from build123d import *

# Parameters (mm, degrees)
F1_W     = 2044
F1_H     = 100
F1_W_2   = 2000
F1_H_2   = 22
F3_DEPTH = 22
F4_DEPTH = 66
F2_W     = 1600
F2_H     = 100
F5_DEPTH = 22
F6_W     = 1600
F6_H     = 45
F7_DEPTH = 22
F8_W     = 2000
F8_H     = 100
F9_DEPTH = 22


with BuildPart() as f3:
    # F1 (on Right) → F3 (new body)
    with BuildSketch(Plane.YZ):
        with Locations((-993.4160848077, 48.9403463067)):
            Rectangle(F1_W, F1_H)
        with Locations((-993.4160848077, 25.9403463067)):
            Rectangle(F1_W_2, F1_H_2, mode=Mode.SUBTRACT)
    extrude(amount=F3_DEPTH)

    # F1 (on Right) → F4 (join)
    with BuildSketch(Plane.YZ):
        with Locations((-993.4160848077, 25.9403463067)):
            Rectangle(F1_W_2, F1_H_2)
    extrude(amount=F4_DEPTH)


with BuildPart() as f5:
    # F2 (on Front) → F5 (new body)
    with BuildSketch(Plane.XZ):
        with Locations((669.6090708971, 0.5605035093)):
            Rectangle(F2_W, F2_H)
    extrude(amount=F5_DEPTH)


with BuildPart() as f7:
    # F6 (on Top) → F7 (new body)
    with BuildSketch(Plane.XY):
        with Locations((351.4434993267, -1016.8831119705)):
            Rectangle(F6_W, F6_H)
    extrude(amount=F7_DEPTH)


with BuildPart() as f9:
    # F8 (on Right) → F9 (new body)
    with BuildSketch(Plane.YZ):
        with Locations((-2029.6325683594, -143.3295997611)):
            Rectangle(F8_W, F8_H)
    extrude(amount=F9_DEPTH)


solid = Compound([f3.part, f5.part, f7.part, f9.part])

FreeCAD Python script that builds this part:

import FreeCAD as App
import Part
import Sketcher
from FreeCAD import Vector


def add_polygon(sketch, points):
    """Adds a closed chain of lines whose ends are joined by coincident constraints."""
    first, n = sketch.GeometryCount, len(points)
    for a, b in zip(points, points[1:] + points[:1]):
        sketch.addGeometry(Part.LineSegment(App.Vector(*a, 0), App.Vector(*b, 0)), False)
    for i in range(n):
        sketch.addConstraint(Sketcher.Constraint("Coincident", first + i, 2, first + (i + 1) % n, 1))

doc = App.newDocument("Part")
params = doc.addObject("Spreadsheet::Sheet", "Params")
for row, (alias, value) in enumerate([
    ("sketch1_width", "2044 mm"),
    ("sketch1_width2", "2000 mm"),
    ("sketch1_height", "100 mm"),
    ("sketch1_height2", "22 mm"),
    ("pad1_length", "22 mm"),
    ("sketch2_width", "2000 mm"),
    ("sketch2_height", "22 mm"),
    ("pad2_length", "66 mm"),
    ("sketch3_width", "1600 mm"),
    ("sketch3_height", "100 mm"),
    ("pad3_length", "22 mm"),
    ("sketch4_width", "1600 mm"),
    ("sketch4_height", "45 mm"),
    ("pad4_length", "22 mm"),
    ("sketch5_width", "2000 mm"),
    ("sketch5_height", "100 mm"),
    ("pad5_length", "22 mm"),
], start=1):
    params.set(f"A{row}", alias)
    params.set(f"B{row}", "=" + value)
    params.setAlias(f"B{row}", alias)

body = doc.addObject("PartDesign::Body", "Body")

# Sketch on YZ plane
sketch1 = body.newObject("Sketcher::SketchObject", "Sketch")
sketch1.AttachmentSupport = (doc.getObject("YZ_Plane"), [""])
sketch1.MapMode = "FlatFace"
add_polygon(sketch1, [(-2015.416085, 98.940346), (-2015.416085, -1.059654), (28.583915, -1.059654), (28.583915, 98.940346)])  # lines 0-3
add_polygon(sketch1, [(6.583915, 14.940346), (-1993.416085, 14.940346), (-1993.416085, 36.940346), (6.583915, 36.940346)])  # lines 4-7
sketch1.addConstraint([
    Sketcher.Constraint("Vertical", 0),
    Sketcher.Constraint("Horizontal", 1),
    Sketcher.Constraint("Vertical", 2),
    Sketcher.Constraint("Horizontal", 3),
    Sketcher.Constraint("Horizontal", 4),
    Sketcher.Constraint("Vertical", 5),
    Sketcher.Constraint("Horizontal", 6),
    Sketcher.Constraint("Vertical", 7),
    Sketcher.Constraint("DistanceX", 1, 1, 1, 2, 2044.0),
    Sketcher.Constraint("DistanceX", 4, 2, 4, 1, 2000.0),
    Sketcher.Constraint("DistanceY", 0, 2, 0, 1, 100.0),
    Sketcher.Constraint("DistanceY", 5, 1, 5, 2, 22.0),
    Sketcher.Constraint("DistanceX", 0, 2, 4, 2, 22.0),
    Sketcher.Constraint("DistanceY", 0, 2, 4, 2, 16.0),
    Sketcher.Constraint("DistanceX", 0, 2, -1, 1, 2015.416085),
    Sketcher.Constraint("DistanceY", 0, 2, -1, 1, 1.059654),
])
sketch1.setExpression("Constraints[16]", "Params.sketch1_width")
sketch1.setExpression("Constraints[17]", "Params.sketch1_width2")
sketch1.setExpression("Constraints[18]", "Params.sketch1_height")
sketch1.setExpression("Constraints[19]", "Params.sketch1_height2")
pad1 = body.newObject("PartDesign::Pad", "Pad")
pad1.Profile = sketch1
pad1.setExpression("Length", "Params.pad1_length")

# Sketch on YZ plane
sketch2 = body.newObject("Sketcher::SketchObject", "Sketch001")
sketch2.AttachmentSupport = (doc.getObject("YZ_Plane"), [""])
sketch2.MapMode = "FlatFace"
add_polygon(sketch2, [(-1993.416085, 36.940346), (-1993.416085, 14.940346), (6.583915, 14.940346), (6.583915, 36.940346)])  # lines 0-3
sketch2.addConstraint([
    Sketcher.Constraint("Vertical", 0),
    Sketcher.Constraint("Horizontal", 1),
    Sketcher.Constraint("Vertical", 2),
    Sketcher.Constraint("Horizontal", 3),
    Sketcher.Constraint("DistanceX", 1, 1, 1, 2, 2000.0),
    Sketcher.Constraint("DistanceY", 0, 2, 0, 1, 22.0),
    Sketcher.Constraint("DistanceX", 0, 2, -1, 1, 1993.416085),
    Sketcher.Constraint("DistanceY", -1, 1, 0, 2, 14.940346),
])
sketch2.setExpression("Constraints[8]", "Params.sketch2_width")
sketch2.setExpression("Constraints[9]", "Params.sketch2_height")
pad2 = body.newObject("PartDesign::Pad", "Pad001")
pad2.Profile = sketch2
pad2.setExpression("Length", "Params.pad2_length")
body2 = doc.addObject("PartDesign::Body", "Body001")

# Sketch on XZ plane
sketch3 = body2.newObject("Sketcher::SketchObject", "Sketch002")
sketch3.AttachmentSupport = (doc.getObject("XZ_Plane001"), [""])
sketch3.MapMode = "FlatFace"
add_polygon(sketch3, [(-130.390929, 50.560504), (-130.390929, -49.439496), (1469.609071, -49.439496), (1469.609071, 50.560504)])  # lines 0-3
sketch3.addConstraint([
    Sketcher.Constraint("Vertical", 0),
    Sketcher.Constraint("Horizontal", 1),
    Sketcher.Constraint("Vertical", 2),
    Sketcher.Constraint("Horizontal", 3),
    Sketcher.Constraint("DistanceX", 1, 1, 1, 2, 1600.0),
    Sketcher.Constraint("DistanceY", 0, 2, 0, 1, 100.0),
    Sketcher.Constraint("DistanceX", 0, 2, -1, 1, 130.390929),
    Sketcher.Constraint("DistanceY", 0, 2, -1, 1, 49.439496),
])
sketch3.setExpression("Constraints[8]", "Params.sketch3_width")
sketch3.setExpression("Constraints[9]", "Params.sketch3_height")
pad3 = body2.newObject("PartDesign::Pad", "Pad002")
pad3.Profile = sketch3
pad3.setExpression("Length", "Params.pad3_length")
body3 = doc.addObject("PartDesign::Body", "Body002")

# Sketch on XY plane
sketch4 = body3.newObject("Sketcher::SketchObject", "Sketch003")
sketch4.AttachmentSupport = (doc.getObject("XY_Plane002"), [""])
sketch4.MapMode = "FlatFace"
add_polygon(sketch4, [(-448.556501, -994.383112), (-448.556501, -1039.383112), (1151.443499, -1039.383112), (1151.443499, -994.383112)])  # lines 0-3
sketch4.addConstraint([
    Sketcher.Constraint("Vertical", 0),
    Sketcher.Constraint("Horizontal", 1),
    Sketcher.Constraint("Vertical", 2),
    Sketcher.Constraint("Horizontal", 3),
    Sketcher.Constraint("DistanceX", 1, 1, 1, 2, 1600.0),
    Sketcher.Constraint("DistanceY", 0, 2, 0, 1, 45.0),
    Sketcher.Constraint("DistanceX", 0, 2, -1, 1, 448.556501),
    Sketcher.Constraint("DistanceY", 0, 2, -1, 1, 1039.383112),
])
sketch4.setExpression("Constraints[8]", "Params.sketch4_width")
sketch4.setExpression("Constraints[9]", "Params.sketch4_height")
pad4 = body3.newObject("PartDesign::Pad", "Pad003")
pad4.Profile = sketch4
pad4.setExpression("Length", "Params.pad4_length")
body4 = doc.addObject("PartDesign::Body", "Body003")

# Sketch on YZ plane
sketch5 = body4.newObject("Sketcher::SketchObject", "Sketch004")
sketch5.AttachmentSupport = (doc.getObject("YZ_Plane003"), [""])
sketch5.MapMode = "FlatFace"
add_polygon(sketch5, [(-3029.632568, -93.3296), (-3029.632568, -193.3296), (-1029.632568, -193.3296), (-1029.632568, -93.3296)])  # lines 0-3
sketch5.addConstraint([
    Sketcher.Constraint("Vertical", 0),
    Sketcher.Constraint("Horizontal", 1),
    Sketcher.Constraint("Vertical", 2),
    Sketcher.Constraint("Horizontal", 3),
    Sketcher.Constraint("DistanceX", 1, 1, 1, 2, 2000.0),
    Sketcher.Constraint("DistanceY", 0, 2, 0, 1, 100.0),
    Sketcher.Constraint("DistanceY", 0, 2, -1, 1, 193.3296),
    Sketcher.Constraint("DistanceX", 0, 2, -1, 1, 3029.632568),
])
sketch5.setExpression("Constraints[8]", "Params.sketch5_width")
sketch5.setExpression("Constraints[9]", "Params.sketch5_height")
pad5 = body4.newObject("PartDesign::Pad", "Pad004")
pad5.Profile = sketch5
pad5.setExpression("Length", "Params.pad5_length")

doc.recompute()
